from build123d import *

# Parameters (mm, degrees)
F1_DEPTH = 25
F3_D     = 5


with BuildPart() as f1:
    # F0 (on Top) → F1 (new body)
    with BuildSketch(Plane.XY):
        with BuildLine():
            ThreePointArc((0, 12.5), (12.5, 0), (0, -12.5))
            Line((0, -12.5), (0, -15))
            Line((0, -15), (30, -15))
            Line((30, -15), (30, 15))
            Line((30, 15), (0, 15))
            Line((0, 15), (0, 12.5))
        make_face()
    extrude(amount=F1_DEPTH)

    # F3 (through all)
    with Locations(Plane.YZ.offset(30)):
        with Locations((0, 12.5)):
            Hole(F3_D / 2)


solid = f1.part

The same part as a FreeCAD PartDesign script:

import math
import FreeCAD as App
import Part
import Sketcher

doc = App.newDocument("Part")
params = doc.addObject("Spreadsheet::Sheet", "Params")
for row, (alias, value) in enumerate([
    ("sketch1_radius", "12.5 mm"),
    ("sketch1_width", "30 mm"),
    ("pad1_length", "25 mm"),
    ("sketch2_diameter", "5 mm"),
    ("hole_diameter", "5 mm"),
], start=1):
    params.set(f"A{row}", alias)
    params.set(f"B{row}", "=" + value)
    params.setAlias(f"B{row}", alias)

body = doc.addObject("PartDesign::Body", "Body")

# Sketch on XY plane
sketch1 = body.newObject("Sketcher::SketchObject", "Sketch")
sketch1.AttachmentSupport = (doc.getObject("XY_Plane"), [""])
sketch1.MapMode = "FlatFace"
sketch1.addGeometry([
    Part.ArcOfCircle(Part.Circle(App.Vector(0, 0, 0), App.Vector(0, 0, 1), 12.5), math.radians(-90), math.radians(90)),  # 0
    Part.LineSegment(App.Vector(0, -12.5, 0), App.Vector(0, -15, 0)),  # 1
    Part.LineSegment(App.Vector(0, -15, 0), App.Vector(30, -15, 0)),  # 2
    Part.LineSegment(App.Vector(30, -15, 0), App.Vector(30, 15, 0)),  # 3
    Part.LineSegment(App.Vector(30, 15, 0), App.Vector(0, 15, 0)),  # 4
    Part.LineSegment(App.Vector(0, 15, 0), App.Vector(0, 12.5, 0)),  # 5
], False)
sketch1.addConstraint([
    Sketcher.Constraint("Coincident", 0, 1, 1, 1),
    Sketcher.Constraint("Coincident", 1, 2, 2, 1),
    Sketcher.Constraint("Coincident", 2, 2, 3, 1),
    Sketcher.Constraint("Coincident", 3, 2, 4, 1),
    Sketcher.Constraint("Coincident", 4, 2, 5, 1),
    Sketcher.Constraint("Coincident", 5, 2, 0, 2),
    Sketcher.Constraint("Vertical", 1),
    Sketcher.Constraint("Horizontal", 2),
    Sketcher.Constraint("Vertical", 3),
    Sketcher.Constraint("Horizontal", 4),
    Sketcher.Constraint("Vertical", 5),
    Sketcher.Constraint("Coincident", 0, 3, -1, 1),
    Sketcher.Constraint("Symmetric", 1, 2, 4, 2, -1, 1),
    Sketcher.Constraint("PointOnObject", 0, 1, -2),
    Sketcher.Constraint("Equal", 4, 3),
    Sketcher.Constraint("Radius", 0, 12.5),
    Sketcher.Constraint("DistanceX", 2, 1, 2, 2, 30.0),
])
sketch1.setExpression("Constraints[15]", "Params.sketch1_radius")
sketch1.setExpression("Constraints[16]", "Params.sketch1_width")
pad1 = body.newObject("PartDesign::Pad", "Pad")
pad1.Profile = sketch1
pad1.setExpression("Length", "Params.pad1_length")

# Sketch on YZ plane
sketch2 = body.newObject("Sketcher::SketchObject", "Sketch001")
sketch2.AttachmentSupport = (doc.getObject("YZ_Plane"), [""])
sketch2.MapMode = "FlatFace"
sketch2.AttachmentOffset = App.Placement(App.Vector(0, 0, 30), App.Rotation())
sketch2.addGeometry(Part.Circle(App.Vector(0, 12.5, 0), App.Vector(0, 0, 1), 2.5), False)
sketch2.addConstraint([
    Sketcher.Constraint("PointOnObject", 0, 3, -2),
    Sketcher.Constraint("Diameter", 0, 5.0),
    Sketcher.Constraint("DistanceY", -1, 1, 0, 3, 12.5),
])
sketch2.setExpression("Constraints[1]", "Params.sketch2_diameter")
doc.recompute()
hole = body.newObject("PartDesign::Hole", "Hole")
hole.Profile = sketch2
hole.ThreadType = "None"
hole.setExpression("Diameter", "Params.hole_diameter")
hole.DepthType = "ThroughAll"

doc.recompute()
